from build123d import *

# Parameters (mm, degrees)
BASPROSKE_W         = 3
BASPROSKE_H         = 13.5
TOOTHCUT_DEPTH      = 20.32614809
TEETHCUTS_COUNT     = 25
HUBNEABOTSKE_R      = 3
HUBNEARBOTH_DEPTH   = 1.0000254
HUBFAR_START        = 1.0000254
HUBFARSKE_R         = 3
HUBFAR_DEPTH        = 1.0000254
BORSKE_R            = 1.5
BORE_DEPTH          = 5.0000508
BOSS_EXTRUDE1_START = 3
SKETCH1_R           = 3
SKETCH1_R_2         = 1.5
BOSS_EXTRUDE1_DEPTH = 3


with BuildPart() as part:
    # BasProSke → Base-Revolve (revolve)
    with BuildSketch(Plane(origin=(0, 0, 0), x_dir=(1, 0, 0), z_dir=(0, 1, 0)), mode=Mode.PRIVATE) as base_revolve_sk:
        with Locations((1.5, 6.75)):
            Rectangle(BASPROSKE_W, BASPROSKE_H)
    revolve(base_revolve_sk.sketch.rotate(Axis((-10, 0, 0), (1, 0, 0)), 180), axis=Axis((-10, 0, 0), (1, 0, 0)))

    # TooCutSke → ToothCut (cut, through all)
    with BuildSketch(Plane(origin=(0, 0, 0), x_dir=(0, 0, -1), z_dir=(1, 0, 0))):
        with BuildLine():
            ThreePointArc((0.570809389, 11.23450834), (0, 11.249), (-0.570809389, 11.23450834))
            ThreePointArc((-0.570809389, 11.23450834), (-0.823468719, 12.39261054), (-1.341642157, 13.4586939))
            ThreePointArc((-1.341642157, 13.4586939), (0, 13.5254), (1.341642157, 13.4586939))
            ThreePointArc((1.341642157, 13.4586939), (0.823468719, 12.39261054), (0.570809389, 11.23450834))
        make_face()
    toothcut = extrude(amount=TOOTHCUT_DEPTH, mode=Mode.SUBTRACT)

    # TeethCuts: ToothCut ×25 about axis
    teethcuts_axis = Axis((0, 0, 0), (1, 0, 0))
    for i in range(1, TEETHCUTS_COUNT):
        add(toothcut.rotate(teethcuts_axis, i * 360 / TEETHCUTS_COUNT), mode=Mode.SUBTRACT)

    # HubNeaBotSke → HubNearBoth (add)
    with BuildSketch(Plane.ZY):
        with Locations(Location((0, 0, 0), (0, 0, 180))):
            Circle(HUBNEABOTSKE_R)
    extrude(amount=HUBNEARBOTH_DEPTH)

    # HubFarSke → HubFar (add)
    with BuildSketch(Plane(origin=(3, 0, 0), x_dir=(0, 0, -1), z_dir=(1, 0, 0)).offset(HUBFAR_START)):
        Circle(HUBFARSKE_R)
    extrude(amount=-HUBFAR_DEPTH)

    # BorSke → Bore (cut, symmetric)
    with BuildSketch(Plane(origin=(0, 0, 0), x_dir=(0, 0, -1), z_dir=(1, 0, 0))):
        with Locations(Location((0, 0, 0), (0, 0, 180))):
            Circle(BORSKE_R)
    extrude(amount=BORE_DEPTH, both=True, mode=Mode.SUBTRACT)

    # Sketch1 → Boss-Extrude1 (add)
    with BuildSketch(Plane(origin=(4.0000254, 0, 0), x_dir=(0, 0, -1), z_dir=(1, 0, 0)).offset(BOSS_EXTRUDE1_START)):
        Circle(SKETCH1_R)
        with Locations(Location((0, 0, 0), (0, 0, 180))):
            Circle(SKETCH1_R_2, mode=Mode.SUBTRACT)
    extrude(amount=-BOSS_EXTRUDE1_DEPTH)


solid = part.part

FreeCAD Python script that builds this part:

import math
import FreeCAD as App
import Part
import Sketcher
from FreeCAD import Vector


def add_polygon(sketch, points):
    """Adds a closed chain of lines whose ends are joined by coincident constraints."""
    first, n = sketch.GeometryCount, len(points)
    for a, b in zip(points, points[1:] + points[:1]):
        sketch.addGeometry(Part.LineSegment(App.Vector(*a, 0), App.Vector(*b, 0)), False)
    for i in range(n):
        sketch.addConstraint(Sketcher.Constraint("Coincident", first + i, 2, first + (i + 1) % n, 1))

doc = App.newDocument("Part")
body = doc.addObject("PartDesign::Body", "Body")

# Sketch on XZ plane
sketch1 = body.newObject("Sketcher::SketchObject", "Sketch")
sketch1.AttachmentSupport = (doc.getObject("XZ_Plane"), [""])
sketch1.MapMode = "FlatFace"
add_polygon(sketch1, [(0, -13.5), (0, 0), (3, 0), (3, -13.5)])  # lines 0-3
sketch1.addConstraint([
    Sketcher.Constraint("Vertical", 0),
    Sketcher.Constraint("Horizontal", 1),
    Sketcher.Constraint("Vertical", 2),
    Sketcher.Constraint("Horizontal", 3),
    Sketcher.Constraint("Coincident", 0, 2, -1, 1),
    Sketcher.Constraint("DistanceX", 1, 1, 1, 2, 3.0),
    Sketcher.Constraint("DistanceY", 0, 1, 0, 2, 13.5),
])
revolution = body.newObject("PartDesign::Revolution", "Revolution")
revolution.Profile = sketch1
revolution.ReferenceAxis = (sketch1, ["H_Axis"])
revolution.Angle = 360

# Sketch on YZ plane
sketch2 = body.newObject("Sketcher::SketchObject", "Sketch001")
sketch2.AttachmentSupport = (doc.getObject("YZ_Plane"), [""])
sketch2.MapMode = "FlatFace"
sketch2.addGeometry([
    Part.ArcOfCircle(Part.Circle(Vector(0, 0, 0), Vector(0, 0, 1), 11.2), math.radians(-2.91), math.radians(2.91)),
    Part.ArcOfCircle(Part.Circle(Vector(10.8, -5.5, 0), Vector(0, 0, 1), 5), math.radians(57), math.radians(85)),
    Part.ArcOfCircle(Part.Circle(Vector(0, 0, 0), Vector(0, 0, 1), 13.5), math.radians(-5.69), math.radians(5.69)),
    Part.ArcOfCircle(Part.Circle(Vector(10.8, 5.5, 0), Vector(0, 0, 1), 5), math.radians(-85), math.radians(-57)),
], False)
sketch2.addConstraint([
    Sketcher.Constraint("Coincident", 0, 1, 1, 2),
    Sketcher.Constraint("Coincident", 1, 1, 2, 1),
    Sketcher.Constraint("Coincident", 2, 2, 3, 2),
    Sketcher.Constraint("Coincident", 3, 1, 0, 2),
    Sketcher.Constraint("Coincident", 0, 3, -1, 1),
    Sketcher.Constraint("Coincident", 2, 3, -1, 1),
    Sketcher.Constraint("Equal", 1, 3),
    Sketcher.Constraint("Symmetric", 1, 3, 3, 3, -1),
    Sketcher.Constraint("Radius", 1, 5.0),
    Sketcher.Constraint("Radius", 0, 11.249),
    Sketcher.Constraint("Radius", 2, 13.5254),
    Sketcher.Constraint("DistanceX", 1, 3, 0, 1, 0.4792),
    Sketcher.Constraint("DistanceX", -1, 1, 1, 3, 10.755308),
])
pocket1 = body.newObject("PartDesign::Pocket", "Pocket")
pocket1.Profile = sketch2
pocket1.Type = "ThroughAll"
pocket1.Reversed = True
doc.recompute()

polarpattern = body.newObject("PartDesign::PolarPattern", "PolarPattern")
polarpattern.Originals = [pocket1]
polarpattern.Axis = (doc.getObject("X_Axis"), [""])
polarpattern.Angle = 360
polarpattern.Occurrences = 25
body.Tip = polarpattern

# Sketch on YZ plane
sketch3 = body.newObject("Sketcher::SketchObject", "Sketch002")
sketch3.AttachmentSupport = (doc.getObject("YZ_Plane"), [""])
sketch3.MapMode = "FlatFace"
sketch3.addGeometry(Part.Circle(Vector(0, 0, 0), Vector(0, 0, 1), 3), False)
sketch3.addConstraint([
    Sketcher.Constraint("Coincident", 0, 3, -1, 1),
    Sketcher.Constraint("Diameter", 0, 6.0),
])
pad1 = body.newObject("PartDesign::Pad", "Pad")
pad1.Profile = sketch3
pad1.Length = 1.000025
pad1.Reversed = True

# Sketch on YZ plane
sketch4 = body.newObject("Sketcher::SketchObject", "Sketch003")
sketch4.AttachmentSupport = (doc.getObject("YZ_Plane"), [""])
sketch4.MapMode = "FlatFace"
sketch4.AttachmentOffset = App.Placement(Vector(0, 0, 4.000025), App.Rotation())
sketch4.addGeometry(Part.Circle(Vector(0, 0, 0), Vector(0, 0, 1), 3), False)
sketch4.addConstraint([
    Sketcher.Constraint("Coincident", 0, 3, -1, 1),
    Sketcher.Constraint("Diameter", 0, 6.0),
])
pad2 = body.newObject("PartDesign::Pad", "Pad001")
pad2.Profile = sketch4
pad2.Length = 1.000025
pad2.Reversed = True

# Sketch on YZ plane
sketch5 = body.newObject("Sketcher::SketchObject", "Sketch004")
sketch5.AttachmentSupport = (doc.getObject("YZ_Plane"), [""])
sketch5.MapMode = "FlatFace"
sketch5.addGeometry(Part.Circle(Vector(0, 0, 0), Vector(0, 0, 1), 1.5), False)
sketch5.addConstraint([
    Sketcher.Constraint("Coincident", 0, 3, -1, 1),
    Sketcher.Constraint("Diameter", 0, 3.0),
])
pocket2 = body.newObject("PartDesign::Pocket", "Pocket001")
pocket2.Profile = sketch5
pocket2.Length = 10.000102
pocket2.Midplane = True

# Sketch on YZ plane
sketch6 = body.newObject("Sketcher::SketchObject", "Sketch005")
sketch6.AttachmentSupport = (doc.getObject("YZ_Plane"), [""])
sketch6.MapMode = "FlatFace"
sketch6.AttachmentOffset = App.Placement(Vector(0, 0, 7.000025), App.Rotation())
sketch6.addGeometry([
    Part.Circle(Vector(0, 0, 0), Vector(0, 0, 1), 3),
    Part.Circle(Vector(0, 0, 0), Vector(0, 0, 1), 1.5),
], False)
sketch6.addConstraint([
    Sketcher.Constraint("Coincident", 0, 3, -1, 1),
    Sketcher.Constraint("Coincident", 1, 3, -1, 1),
    Sketcher.Constraint("Diameter", 0, 6.0),
    Sketcher.Constraint("Diameter", 1, 3.0),
])
pad3 = body.newObject("PartDesign::Pad", "Pad002")
pad3.Profile = sketch6
pad3.Length = 3
pad3.Reversed = True

doc.recompute()
